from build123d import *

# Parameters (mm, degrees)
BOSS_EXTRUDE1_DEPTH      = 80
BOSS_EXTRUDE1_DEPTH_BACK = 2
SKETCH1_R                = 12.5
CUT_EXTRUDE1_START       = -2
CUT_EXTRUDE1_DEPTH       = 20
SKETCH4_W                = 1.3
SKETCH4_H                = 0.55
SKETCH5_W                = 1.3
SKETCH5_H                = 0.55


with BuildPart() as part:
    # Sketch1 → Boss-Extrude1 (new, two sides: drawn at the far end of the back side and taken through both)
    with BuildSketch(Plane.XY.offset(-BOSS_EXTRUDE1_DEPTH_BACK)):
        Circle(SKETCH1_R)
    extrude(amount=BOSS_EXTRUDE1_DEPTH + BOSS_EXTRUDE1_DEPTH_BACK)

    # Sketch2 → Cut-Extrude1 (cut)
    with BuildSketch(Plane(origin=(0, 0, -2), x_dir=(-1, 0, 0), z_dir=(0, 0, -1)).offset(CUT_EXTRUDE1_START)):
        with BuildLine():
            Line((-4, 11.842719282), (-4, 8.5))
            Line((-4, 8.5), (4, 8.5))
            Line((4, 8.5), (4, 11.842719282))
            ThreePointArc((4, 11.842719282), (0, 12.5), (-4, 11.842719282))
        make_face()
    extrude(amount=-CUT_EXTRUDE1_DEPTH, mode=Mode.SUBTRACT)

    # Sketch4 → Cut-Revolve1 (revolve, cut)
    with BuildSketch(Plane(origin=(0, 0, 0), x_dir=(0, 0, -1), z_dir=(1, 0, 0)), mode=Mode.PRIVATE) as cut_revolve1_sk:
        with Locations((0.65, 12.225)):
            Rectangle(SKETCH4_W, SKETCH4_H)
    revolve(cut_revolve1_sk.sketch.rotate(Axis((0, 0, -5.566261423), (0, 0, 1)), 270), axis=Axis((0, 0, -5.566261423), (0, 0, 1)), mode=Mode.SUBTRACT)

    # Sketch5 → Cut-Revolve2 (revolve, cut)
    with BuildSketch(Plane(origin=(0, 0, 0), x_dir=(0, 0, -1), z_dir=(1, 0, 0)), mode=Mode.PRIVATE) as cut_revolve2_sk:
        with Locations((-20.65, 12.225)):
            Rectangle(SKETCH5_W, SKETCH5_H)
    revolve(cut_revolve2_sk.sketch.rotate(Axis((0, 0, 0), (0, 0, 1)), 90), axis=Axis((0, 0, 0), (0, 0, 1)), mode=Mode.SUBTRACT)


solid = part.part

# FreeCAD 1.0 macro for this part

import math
import FreeCAD as App
import Part
import Sketcher
Q = App.Units.Quantity


def add_polygon(sketch, points):
    """Adds a closed chain of lines whose ends are joined by coincident constraints."""
    first, n = sketch.GeometryCount, len(points)
    for a, b in zip(points, points[1:] + points[:1]):
        sketch.addGeometry(Part.LineSegment(App.Vector(*a, 0), App.Vector(*b, 0)), False)
    for i in range(n):
        sketch.addConstraint(Sketcher.Constraint("Coincident", first + i, 2, first + (i + 1) % n, 1))

doc = App.newDocument("Part")
params = doc.addObject("Spreadsheet::Sheet", "Params")
for row, (alias, value) in enumerate([
    ("sketch1_diameter", "25 mm"),
    ("pad1_length", "80 mm"),
    ("pad1_length2", "2 mm"),
    ("sketch2_radius", "12.5 mm"),
    ("sketch2_width", "8 mm"),
    ("pocket1_length", "20 mm"),
    ("sketch3_height", "1.3 mm"),
    ("sketch3_width", "0.55 mm"),
    ("groove_angle", "360 deg"),
    ("sketch4_height", "1.3 mm"),
    ("sketch4_width", "0.55 mm"),
    ("groove2_angle", "360 deg"),
], start=1):
    params.set(f"A{row}", alias)
    params.set(f"B{row}", "=" + value)
    params.setAlias(f"B{row}", alias)

body = doc.addObject("PartDesign::Body", "Body")

# Sketch on XY plane
sketch1 = body.newObject("Sketcher::SketchObject", "Sketch")
sketch1.AttachmentSupport = (doc.getObject("XY_Plane"), [""])
sketch1.MapMode = "FlatFace"
sketch1.addGeometry(Part.Circle(App.Vector(0, 0, 0), App.Vector(0, 0, 1), 12), False)
sketch1.addConstraint(Sketcher.Constraint("Coincident", 0, 3, -1, 1))
sketch1.addConstraint(Sketcher.Constraint("Diameter", 0, Q("25 mm")))
sketch1.setExpression("Constraints[1]", "Params.sketch1_diameter")
pad1 = body.newObject("PartDesign::Pad", "Pad")
pad1.Profile = sketch1
pad1.Type = "TwoLengths"
pad1.setExpression("Length", "Params.pad1_length")
pad1.setExpression("Length2", "Params.pad1_length2")

# Sketch on XY plane
sketch2 = body.newObject("Sketcher::SketchObject", "Sketch001")
sketch2.AttachmentSupport = (doc.getObject("XY_Plane"), [""])
sketch2.MapMode = "FlatFace"
sketch2.addGeometry(Part.LineSegment(App.Vector(4, 11.8, 0), App.Vector(4, 8.5, 0)), False)
sketch2.addGeometry(Part.LineSegment(App.Vector(4, 8.5, 0), App.Vector(-4, 8.5, 0)), False)
sketch2.addGeometry(Part.LineSegment(App.Vector(-4, 8.5, 0), App.Vector(-4, 11.8, 0)), False)
sketch2.addGeometry(Part.ArcOfCircle(Part.Circle(App.Vector(0, 0, 0), App.Vector(0, 0, 1), 12.5), math.radians(71), math.radians(109)), False)
sketch2.addConstraint(Sketcher.Constraint("Coincident", 0, 2, 1, 1))
sketch2.addConstraint(Sketcher.Constraint("Coincident", 1, 2, 2, 1))
sketch2.addConstraint(Sketcher.Constraint("Coincident", 2, 2, 3, 2))
sketch2.addConstraint(Sketcher.Constraint("Coincident", 3, 1, 0, 1))
sketch2.addConstraint(Sketcher.Constraint("Vertical", 0))
sketch2.addConstraint(Sketcher.Constraint("Horizontal", 1))
sketch2.addConstraint(Sketcher.Constraint("Vertical", 2))
sketch2.addConstraint(Sketcher.Constraint("Coincident", 3, 3, -1, 1))
sketch2.addConstraint(Sketcher.Constraint("Horizontal", 2, 2, 3, 1))
sketch2.addConstraint(Sketcher.Constraint("Radius", 3, Q("12.5 mm")))
sketch2.addConstraint(Sketcher.Constraint("DistanceX", 1, 2, 1, 1, Q("8 mm")))
sketch2.addConstraint(Sketcher.Constraint("DistanceY", -1, 1, 0, 2, Q("8.5 mm")))
sketch2.setExpression("Constraints[9]", "Params.sketch2_radius")
sketch2.setExpression("Constraints[10]", "Params.sketch2_width")
pocket1 = body.newObject("PartDesign::Pocket", "Pocket")
pocket1.Profile = sketch2
pocket1.setExpression("Length", "Params.pocket1_length")
pocket1.Reversed = True

# Sketch on YZ plane
sketch3 = body.newObject("Sketcher::SketchObject", "Sketch002")
sketch3.AttachmentSupport = (doc.getObject("YZ_Plane"), [""])
sketch3.MapMode = "FlatFace"
add_polygon(sketch3, [(12.5, 0), (11.9, 0), (11.9, -1.3), (12.5, -1.3)])  # lines 0-3
sketch3.addConstraint(Sketcher.Constraint("Horizontal", 0))
sketch3.addConstraint(Sketcher.Constraint("Vertical", 1))
sketch3.addConstraint(Sketcher.Constraint("Horizontal", 2))
sketch3.addConstraint(Sketcher.Constraint("Vertical", 3))
sketch3.addConstraint(Sketcher.Constraint("PointOnObject", 0, 2, -1))
sketch3.addConstraint(Sketcher.Constraint("DistanceY", 1, 2, 1, 1, Q("1.3 mm")))
sketch3.addConstraint(Sketcher.Constraint("DistanceX", 0, 2, 0, 1, Q("0.55 mm")))
sketch3.addConstraint(Sketcher.Constraint("DistanceX", -1, 1, 2, 2, Q("12.5 mm")))
sketch3.setExpression("Constraints[9]", "Params.sketch3_height")
sketch3.setExpression("Constraints[10]", "Params.sketch3_width")
groove = body.newObject("PartDesign::Groove", "Groove")
groove.Profile = sketch3
groove.ReferenceAxis = (sketch3, ["V_Axis"])
groove.setExpression("Angle", "Params.groove_angle")

# Sketch on YZ plane
sketch4 = body.newObject("Sketcher::SketchObject", "Sketch003")
sketch4.AttachmentSupport = (doc.getObject("YZ_Plane"), [""])
sketch4.MapMode = "FlatFace"
add_polygon(sketch4, [(12.5, 21.3), (11.9, 21.3), (11.9, 20), (12.5, 20)])  # lines 0-3
sketch4.addConstraint(Sketcher.Constraint("Horizontal", 0))
sketch4.addConstraint(Sketcher.Constraint("Vertical", 1))
sketch4.addConstraint(Sketcher.Constraint("Horizontal", 2))
sketch4.addConstraint(Sketcher.Constraint("Vertical", 3))
sketch4.addConstraint(Sketcher.Constraint("DistanceY", 1, 2, 1, 1, Q("1.3 mm")))
sketch4.addConstraint(Sketcher.Constraint("DistanceY", -1, 1, 1, 2, Q("20 mm")))
sketch4.addConstraint(Sketcher.Constraint("DistanceX", 0, 2, 0, 1, Q("0.55 mm")))
sketch4.addConstraint(Sketcher.Constraint("DistanceX", -1, 1, 2, 2, Q("12.5 mm")))
sketch4.setExpression("Constraints[8]", "Params.sketch4_height")
sketch4.setExpression("Constraints[10]", "Params.sketch4_width")
groove2 = body.newObject("PartDesign::Groove", "Groove001")
groove2.Profile = sketch4
groove2.ReferenceAxis = (sketch4, ["V_Axis"])
groove2.setExpression("Angle", "Params.groove2_angle")

doc.recompute()
